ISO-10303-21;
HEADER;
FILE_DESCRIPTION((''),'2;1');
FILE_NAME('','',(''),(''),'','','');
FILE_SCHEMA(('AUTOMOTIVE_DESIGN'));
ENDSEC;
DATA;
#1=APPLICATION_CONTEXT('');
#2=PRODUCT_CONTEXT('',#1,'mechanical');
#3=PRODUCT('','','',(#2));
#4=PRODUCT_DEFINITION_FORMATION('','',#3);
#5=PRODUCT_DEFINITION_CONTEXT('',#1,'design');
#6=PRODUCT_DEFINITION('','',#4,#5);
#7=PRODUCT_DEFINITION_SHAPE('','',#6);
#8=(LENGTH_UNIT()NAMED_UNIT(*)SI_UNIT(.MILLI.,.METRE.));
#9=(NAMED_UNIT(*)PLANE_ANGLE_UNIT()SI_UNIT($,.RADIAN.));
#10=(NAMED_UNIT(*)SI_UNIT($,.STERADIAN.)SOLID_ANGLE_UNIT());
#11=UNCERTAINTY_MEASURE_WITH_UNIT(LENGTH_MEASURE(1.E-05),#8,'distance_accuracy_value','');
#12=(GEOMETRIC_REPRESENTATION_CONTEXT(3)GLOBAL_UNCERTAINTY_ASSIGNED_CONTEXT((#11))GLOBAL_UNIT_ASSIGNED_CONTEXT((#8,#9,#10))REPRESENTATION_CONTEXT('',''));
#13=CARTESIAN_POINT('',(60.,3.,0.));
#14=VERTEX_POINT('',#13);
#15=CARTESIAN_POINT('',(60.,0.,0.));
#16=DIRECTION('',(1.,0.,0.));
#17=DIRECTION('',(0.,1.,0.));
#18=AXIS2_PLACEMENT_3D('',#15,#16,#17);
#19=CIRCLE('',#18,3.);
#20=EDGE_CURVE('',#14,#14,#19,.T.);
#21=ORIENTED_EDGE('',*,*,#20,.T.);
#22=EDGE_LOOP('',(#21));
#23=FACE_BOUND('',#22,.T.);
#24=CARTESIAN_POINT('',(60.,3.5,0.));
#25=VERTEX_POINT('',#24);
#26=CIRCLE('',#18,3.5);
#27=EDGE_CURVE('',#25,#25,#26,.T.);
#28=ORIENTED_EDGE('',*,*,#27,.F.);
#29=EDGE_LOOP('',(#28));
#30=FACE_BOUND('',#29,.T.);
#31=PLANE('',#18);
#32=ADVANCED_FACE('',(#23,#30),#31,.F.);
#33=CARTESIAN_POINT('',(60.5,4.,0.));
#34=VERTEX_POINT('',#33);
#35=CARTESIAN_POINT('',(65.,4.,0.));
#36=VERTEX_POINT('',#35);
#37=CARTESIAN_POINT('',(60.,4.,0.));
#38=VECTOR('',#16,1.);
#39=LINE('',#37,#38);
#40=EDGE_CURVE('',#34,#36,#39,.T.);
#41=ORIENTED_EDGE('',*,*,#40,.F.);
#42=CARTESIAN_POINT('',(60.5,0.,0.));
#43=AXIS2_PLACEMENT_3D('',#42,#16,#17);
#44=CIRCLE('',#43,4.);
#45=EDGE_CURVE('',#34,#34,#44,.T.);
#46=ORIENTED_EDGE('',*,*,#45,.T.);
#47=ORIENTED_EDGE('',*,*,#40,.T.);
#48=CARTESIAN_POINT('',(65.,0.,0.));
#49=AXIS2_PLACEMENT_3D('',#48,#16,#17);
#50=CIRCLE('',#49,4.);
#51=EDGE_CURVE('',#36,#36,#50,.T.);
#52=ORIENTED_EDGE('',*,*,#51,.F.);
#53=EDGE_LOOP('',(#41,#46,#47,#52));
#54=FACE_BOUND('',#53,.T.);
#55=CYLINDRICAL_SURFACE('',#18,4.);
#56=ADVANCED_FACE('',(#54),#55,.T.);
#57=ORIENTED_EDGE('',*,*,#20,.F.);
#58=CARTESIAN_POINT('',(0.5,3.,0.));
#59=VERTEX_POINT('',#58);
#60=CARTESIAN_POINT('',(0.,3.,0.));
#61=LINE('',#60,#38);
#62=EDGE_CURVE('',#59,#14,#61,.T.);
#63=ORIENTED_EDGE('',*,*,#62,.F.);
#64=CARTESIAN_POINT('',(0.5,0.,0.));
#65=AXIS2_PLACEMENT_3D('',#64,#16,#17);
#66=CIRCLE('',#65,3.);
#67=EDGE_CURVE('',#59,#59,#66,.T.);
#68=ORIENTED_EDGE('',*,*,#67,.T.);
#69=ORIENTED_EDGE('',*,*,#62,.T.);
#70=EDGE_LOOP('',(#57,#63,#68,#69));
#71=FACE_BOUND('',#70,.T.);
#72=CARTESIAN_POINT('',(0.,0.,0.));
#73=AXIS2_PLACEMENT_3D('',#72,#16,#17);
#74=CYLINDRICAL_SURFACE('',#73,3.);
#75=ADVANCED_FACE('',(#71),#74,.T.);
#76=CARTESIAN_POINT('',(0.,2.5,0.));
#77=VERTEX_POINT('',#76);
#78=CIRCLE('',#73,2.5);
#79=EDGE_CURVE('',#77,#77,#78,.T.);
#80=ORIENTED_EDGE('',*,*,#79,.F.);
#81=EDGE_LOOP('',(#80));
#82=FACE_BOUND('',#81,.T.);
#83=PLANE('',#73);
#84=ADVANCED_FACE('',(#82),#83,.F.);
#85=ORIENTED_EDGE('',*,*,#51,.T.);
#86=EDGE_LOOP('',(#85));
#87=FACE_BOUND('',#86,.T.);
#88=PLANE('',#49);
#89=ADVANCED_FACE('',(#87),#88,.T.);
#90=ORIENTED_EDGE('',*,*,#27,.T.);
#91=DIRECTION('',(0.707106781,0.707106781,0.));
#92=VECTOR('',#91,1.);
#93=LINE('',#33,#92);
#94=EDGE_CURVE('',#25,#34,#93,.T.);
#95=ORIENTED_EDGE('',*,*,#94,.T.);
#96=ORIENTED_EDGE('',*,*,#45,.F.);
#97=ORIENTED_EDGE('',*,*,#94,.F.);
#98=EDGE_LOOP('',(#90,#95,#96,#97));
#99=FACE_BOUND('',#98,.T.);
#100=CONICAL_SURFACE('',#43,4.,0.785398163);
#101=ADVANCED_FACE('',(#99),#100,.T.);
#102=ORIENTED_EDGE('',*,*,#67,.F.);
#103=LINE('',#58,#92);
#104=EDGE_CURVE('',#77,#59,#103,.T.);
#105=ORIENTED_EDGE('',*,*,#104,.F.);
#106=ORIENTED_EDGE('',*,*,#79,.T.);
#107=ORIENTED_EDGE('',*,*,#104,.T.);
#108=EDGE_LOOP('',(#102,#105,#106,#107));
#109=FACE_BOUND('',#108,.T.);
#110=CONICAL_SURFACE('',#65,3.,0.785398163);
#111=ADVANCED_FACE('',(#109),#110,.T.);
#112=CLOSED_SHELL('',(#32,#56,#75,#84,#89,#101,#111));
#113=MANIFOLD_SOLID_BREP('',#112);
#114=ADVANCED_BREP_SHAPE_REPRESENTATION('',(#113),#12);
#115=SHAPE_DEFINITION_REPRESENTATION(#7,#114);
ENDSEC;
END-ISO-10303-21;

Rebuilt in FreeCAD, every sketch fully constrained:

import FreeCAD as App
import Part
import Sketcher
Q = App.Units.Quantity


def edges_at(feature, points):
    """Names of the edges that pass closest to the given points."""
    edges = feature.Shape.Edges
    near = lambda p: min(range(len(edges)), key=lambda i: edges[i].distToShape(Part.Vertex(*p))[0])
    return sorted({f"Edge{near(p) + 1}" for p in points})

doc = App.newDocument("Part")
params = doc.addObject("Spreadsheet::Sheet", "Params")
for row, (alias, value) in enumerate([
    ("sketch1_width", "65 mm"),
    ("sketch1_width2", "5 mm"),
    ("sketch1_height", "3 mm"),
    ("sketch1_height2", "4 mm"),
    ("revolution_angle", "360 deg"),
    ("chamfer_size", "0.5 mm"),
    ("chamfer2_size", "0.5 mm"),
], start=1):
    params.set(f"A{row}", alias)
    params.set(f"B{row}", "=" + value)
    params.setAlias(f"B{row}", alias)

body = doc.addObject("PartDesign::Body", "Body")

sketch1 = body.newObject("Sketcher::SketchObject", "Sketch")
sketch1.AttachmentSupport = (doc.getObject("XY_Plane"), [""])
sketch1.MapMode = "FlatFace"
sketch1.addGeometry([
    Part.LineSegment(App.Vector(0, 3, 0), App.Vector(0, 0, 0)),
    Part.LineSegment(App.Vector(0, 0, 0), App.Vector(65, 0, 0)),
    Part.LineSegment(App.Vector(65, 0, 0), App.Vector(65, 4, 0)),
    Part.LineSegment(App.Vector(65, 4, 0), App.Vector(60, 4, 0)),
    Part.LineSegment(App.Vector(60, 4, 0), App.Vector(60, 3, 0)),
    Part.LineSegment(App.Vector(60, 3, 0), App.Vector(0, 3, 0)),
], False)
sketch1.addConstraint([
    Sketcher.Constraint("Coincident", 0, 2, 1, 1),
    Sketcher.Constraint("Coincident", 1, 2, 2, 1),
    Sketcher.Constraint("Coincident", 2, 2, 3, 1),
    Sketcher.Constraint("Coincident", 3, 2, 4, 1),
    Sketcher.Constraint("Coincident", 4, 2, 5, 1),
    Sketcher.Constraint("Coincident", 5, 2, 0, 1),
    Sketcher.Constraint("Vertical", 0),
    Sketcher.Constraint("Horizontal", 1),
    Sketcher.Constraint("Vertical", 2),
    Sketcher.Constraint("Horizontal", 3),
    Sketcher.Constraint("Vertical", 4),
    Sketcher.Constraint("Horizontal", 5),
    Sketcher.Constraint("Coincident", 0, 2, -1, 1),
    Sketcher.Constraint("DistanceX", 1, 1, 1, 2, Q("65 mm")),
    Sketcher.Constraint("DistanceX", 3, 2, 3, 1, Q("5 mm")),
    Sketcher.Constraint("DistanceY", 0, 2, 0, 1, Q("3 mm")),
    Sketcher.Constraint("DistanceY", 2, 1, 2, 2, Q("4 mm")),
])
sketch1.setExpression("Constraints[13]", "Params.sketch1_width")
sketch1.setExpression("Constraints[14]", "Params.sketch1_width2")
sketch1.setExpression("Constraints[15]", "Params.sketch1_height")
sketch1.setExpression("Constraints[16]", "Params.sketch1_height2")
revolution = body.newObject("PartDesign::Revolution", "Revolution")
revolution.Profile = sketch1
revolution.ReferenceAxis = (sketch1, ["H_Axis"])
revolution.setExpression("Angle", "Params.revolution_angle")
doc.recompute()

chamfer = body.newObject("PartDesign::Chamfer", "Chamfer")
chamfer.Base = (revolution, edges_at(revolution, [(0, -3, 0)]))
chamfer.setExpression("Size", "Params.chamfer_size")
doc.recompute()

chamfer2 = body.newObject("PartDesign::Chamfer", "Chamfer001")
chamfer2.Base = (chamfer, edges_at(chamfer, [(60, -4, 0)]))
chamfer2.setExpression("Size", "Params.chamfer2_size")

doc.recompute()
